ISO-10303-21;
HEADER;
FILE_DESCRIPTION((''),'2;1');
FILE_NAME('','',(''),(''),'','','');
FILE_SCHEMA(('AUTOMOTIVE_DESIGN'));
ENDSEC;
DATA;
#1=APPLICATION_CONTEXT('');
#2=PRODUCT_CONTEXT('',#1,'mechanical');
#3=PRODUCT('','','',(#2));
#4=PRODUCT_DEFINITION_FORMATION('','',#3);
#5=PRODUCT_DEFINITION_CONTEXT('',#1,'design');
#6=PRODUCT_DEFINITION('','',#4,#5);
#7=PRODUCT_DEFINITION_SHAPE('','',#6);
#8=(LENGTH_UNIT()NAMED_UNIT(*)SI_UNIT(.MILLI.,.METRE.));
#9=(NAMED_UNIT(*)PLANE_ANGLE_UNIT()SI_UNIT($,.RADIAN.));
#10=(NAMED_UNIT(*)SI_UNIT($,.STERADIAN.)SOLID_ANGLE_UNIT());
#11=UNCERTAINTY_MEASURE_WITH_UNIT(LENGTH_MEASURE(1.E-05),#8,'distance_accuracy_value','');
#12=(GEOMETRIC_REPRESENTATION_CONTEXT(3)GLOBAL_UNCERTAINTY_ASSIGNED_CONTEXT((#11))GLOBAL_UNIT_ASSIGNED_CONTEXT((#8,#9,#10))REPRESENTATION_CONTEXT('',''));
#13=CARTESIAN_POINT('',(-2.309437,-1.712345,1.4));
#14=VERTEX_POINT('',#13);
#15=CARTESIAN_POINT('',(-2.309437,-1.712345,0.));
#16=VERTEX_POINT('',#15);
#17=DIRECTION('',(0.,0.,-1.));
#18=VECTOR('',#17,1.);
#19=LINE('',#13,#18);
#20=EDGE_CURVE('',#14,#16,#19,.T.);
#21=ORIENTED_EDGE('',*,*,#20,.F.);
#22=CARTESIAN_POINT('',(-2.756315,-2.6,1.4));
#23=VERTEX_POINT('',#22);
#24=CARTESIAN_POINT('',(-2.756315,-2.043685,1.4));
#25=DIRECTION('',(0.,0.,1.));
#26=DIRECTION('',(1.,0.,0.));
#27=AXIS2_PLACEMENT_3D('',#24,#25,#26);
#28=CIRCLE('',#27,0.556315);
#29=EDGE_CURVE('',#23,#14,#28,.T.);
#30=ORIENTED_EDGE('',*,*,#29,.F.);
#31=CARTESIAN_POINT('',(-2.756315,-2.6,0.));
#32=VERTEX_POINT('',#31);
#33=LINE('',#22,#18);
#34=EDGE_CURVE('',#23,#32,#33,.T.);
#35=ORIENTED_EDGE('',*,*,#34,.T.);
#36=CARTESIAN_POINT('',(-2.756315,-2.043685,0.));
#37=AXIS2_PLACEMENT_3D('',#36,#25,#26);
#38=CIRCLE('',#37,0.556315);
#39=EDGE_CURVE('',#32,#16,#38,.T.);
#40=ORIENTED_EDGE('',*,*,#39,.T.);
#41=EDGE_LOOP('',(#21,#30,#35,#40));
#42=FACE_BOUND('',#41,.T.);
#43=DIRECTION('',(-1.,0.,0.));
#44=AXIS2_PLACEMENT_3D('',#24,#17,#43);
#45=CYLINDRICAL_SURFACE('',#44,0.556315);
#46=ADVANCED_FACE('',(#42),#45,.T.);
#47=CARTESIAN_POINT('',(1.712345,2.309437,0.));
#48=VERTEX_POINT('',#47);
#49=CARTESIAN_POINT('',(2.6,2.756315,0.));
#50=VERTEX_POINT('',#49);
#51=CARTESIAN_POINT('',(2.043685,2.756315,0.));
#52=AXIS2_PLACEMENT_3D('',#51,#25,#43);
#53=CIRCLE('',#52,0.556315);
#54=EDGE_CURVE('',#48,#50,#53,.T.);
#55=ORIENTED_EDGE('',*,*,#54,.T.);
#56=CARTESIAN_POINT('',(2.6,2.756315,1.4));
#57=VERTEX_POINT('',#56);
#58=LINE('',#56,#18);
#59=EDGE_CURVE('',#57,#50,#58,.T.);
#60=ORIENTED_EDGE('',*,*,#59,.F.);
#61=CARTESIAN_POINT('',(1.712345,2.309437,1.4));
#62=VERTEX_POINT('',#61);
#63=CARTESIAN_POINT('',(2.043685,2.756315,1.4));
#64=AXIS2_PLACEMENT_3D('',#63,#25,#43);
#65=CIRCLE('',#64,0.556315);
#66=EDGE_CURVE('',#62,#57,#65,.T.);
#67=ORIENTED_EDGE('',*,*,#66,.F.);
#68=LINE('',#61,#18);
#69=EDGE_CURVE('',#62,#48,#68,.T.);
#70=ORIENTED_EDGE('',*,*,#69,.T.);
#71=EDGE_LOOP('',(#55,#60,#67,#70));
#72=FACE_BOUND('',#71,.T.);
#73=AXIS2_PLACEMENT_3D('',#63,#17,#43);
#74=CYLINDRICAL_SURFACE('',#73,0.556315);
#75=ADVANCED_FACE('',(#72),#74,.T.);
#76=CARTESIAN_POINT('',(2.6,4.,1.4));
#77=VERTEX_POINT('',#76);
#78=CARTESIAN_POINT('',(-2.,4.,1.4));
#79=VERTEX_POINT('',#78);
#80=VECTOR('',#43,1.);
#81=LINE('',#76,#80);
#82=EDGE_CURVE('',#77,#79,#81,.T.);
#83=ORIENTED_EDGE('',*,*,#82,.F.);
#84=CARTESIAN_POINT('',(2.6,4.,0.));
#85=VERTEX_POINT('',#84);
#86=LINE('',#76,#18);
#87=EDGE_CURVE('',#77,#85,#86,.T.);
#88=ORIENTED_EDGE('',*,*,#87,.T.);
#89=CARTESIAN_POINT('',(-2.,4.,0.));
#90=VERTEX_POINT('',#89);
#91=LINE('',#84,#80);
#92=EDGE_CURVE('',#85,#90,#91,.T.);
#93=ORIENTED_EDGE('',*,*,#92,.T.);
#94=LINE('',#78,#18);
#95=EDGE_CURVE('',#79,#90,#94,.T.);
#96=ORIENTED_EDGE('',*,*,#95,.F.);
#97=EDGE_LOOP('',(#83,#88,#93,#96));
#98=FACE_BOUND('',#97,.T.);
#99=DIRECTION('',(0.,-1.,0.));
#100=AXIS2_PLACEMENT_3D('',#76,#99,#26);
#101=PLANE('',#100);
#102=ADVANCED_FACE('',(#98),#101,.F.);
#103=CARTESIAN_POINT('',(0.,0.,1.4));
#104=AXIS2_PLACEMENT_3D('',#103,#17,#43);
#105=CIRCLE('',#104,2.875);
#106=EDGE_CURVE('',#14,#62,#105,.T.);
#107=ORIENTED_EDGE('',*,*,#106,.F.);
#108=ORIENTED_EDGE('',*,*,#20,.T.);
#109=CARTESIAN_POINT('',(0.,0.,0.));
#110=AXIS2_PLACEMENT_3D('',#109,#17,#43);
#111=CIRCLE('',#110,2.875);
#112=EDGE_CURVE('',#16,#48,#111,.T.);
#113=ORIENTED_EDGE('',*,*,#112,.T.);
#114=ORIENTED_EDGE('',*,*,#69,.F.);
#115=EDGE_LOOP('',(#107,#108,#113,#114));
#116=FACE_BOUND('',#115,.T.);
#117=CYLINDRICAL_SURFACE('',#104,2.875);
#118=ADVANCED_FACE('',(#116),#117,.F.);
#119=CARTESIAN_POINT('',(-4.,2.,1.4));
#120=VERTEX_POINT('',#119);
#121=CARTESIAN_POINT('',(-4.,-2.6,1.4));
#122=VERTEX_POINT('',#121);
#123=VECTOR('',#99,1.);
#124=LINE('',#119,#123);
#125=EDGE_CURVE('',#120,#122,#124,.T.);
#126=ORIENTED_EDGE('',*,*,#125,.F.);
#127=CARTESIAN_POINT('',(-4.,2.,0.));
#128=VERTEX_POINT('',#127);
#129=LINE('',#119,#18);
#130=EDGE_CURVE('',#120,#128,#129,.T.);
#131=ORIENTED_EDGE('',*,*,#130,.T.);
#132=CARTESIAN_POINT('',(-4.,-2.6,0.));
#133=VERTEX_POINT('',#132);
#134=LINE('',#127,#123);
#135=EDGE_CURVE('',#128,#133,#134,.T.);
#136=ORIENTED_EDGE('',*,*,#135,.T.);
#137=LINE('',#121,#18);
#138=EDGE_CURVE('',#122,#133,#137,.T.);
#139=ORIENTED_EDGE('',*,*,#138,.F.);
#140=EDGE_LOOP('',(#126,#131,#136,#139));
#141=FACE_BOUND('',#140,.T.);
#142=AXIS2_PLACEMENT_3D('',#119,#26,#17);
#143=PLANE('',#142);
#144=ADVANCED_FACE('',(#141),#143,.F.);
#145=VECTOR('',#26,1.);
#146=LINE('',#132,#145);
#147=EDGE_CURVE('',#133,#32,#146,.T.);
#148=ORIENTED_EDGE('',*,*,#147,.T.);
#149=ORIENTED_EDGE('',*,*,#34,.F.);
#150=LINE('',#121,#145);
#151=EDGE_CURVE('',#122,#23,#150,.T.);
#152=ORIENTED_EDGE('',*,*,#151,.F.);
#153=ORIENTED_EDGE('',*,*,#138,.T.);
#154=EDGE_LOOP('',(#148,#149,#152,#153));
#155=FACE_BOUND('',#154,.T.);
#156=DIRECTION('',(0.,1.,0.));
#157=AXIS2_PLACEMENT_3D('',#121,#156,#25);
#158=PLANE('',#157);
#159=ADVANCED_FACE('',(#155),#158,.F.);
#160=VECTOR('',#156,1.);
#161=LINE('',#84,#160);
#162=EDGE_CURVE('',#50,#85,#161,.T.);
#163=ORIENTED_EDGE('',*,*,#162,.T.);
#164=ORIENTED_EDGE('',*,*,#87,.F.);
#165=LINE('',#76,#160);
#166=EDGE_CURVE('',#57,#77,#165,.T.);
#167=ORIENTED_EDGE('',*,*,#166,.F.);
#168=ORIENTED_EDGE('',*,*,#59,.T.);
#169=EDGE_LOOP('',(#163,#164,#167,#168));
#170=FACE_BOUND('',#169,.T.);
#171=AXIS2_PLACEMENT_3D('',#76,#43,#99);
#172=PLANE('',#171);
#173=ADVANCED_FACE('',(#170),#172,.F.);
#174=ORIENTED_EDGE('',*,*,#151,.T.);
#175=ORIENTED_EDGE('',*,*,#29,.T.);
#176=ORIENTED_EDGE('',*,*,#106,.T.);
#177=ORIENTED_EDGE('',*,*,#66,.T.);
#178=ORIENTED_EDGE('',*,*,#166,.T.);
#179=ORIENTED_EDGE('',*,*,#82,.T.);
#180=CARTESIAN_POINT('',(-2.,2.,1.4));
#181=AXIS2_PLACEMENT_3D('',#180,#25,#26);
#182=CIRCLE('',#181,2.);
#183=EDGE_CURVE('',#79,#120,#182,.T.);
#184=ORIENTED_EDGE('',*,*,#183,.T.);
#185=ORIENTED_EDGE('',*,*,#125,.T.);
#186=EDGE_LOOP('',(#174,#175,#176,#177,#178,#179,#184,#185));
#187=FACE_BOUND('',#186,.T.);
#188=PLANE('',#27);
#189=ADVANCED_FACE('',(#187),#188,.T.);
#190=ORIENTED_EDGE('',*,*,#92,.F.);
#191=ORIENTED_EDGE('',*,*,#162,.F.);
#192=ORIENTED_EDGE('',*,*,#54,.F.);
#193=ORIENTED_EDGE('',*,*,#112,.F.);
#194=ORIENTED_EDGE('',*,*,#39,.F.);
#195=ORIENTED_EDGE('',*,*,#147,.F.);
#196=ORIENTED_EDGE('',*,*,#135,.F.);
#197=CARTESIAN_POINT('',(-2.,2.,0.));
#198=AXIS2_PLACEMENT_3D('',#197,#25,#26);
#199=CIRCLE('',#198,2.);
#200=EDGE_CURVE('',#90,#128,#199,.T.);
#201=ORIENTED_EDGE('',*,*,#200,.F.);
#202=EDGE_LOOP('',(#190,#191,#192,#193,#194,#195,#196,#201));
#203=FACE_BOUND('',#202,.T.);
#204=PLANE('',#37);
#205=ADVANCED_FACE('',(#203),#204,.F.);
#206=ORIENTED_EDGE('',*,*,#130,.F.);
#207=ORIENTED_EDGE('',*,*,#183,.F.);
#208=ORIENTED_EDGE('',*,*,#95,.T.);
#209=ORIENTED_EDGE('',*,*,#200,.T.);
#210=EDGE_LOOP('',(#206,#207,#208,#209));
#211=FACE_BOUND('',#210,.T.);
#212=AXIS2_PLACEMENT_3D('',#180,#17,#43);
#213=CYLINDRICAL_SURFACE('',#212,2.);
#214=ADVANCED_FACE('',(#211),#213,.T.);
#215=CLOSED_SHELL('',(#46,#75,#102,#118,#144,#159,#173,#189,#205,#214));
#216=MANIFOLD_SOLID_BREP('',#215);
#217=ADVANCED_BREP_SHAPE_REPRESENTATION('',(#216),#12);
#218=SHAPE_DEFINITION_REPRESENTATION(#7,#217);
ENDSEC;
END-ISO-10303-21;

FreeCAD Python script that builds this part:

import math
import FreeCAD as App
import Part
import Sketcher
Q = App.Units.Quantity

doc = App.newDocument("Part")
body = doc.addObject("PartDesign::Body", "Body")

sketch1 = body.newObject("Sketcher::SketchObject", "Sketch")
sketch1.AttachmentSupport = (doc.getObject("XY_Plane"), [""])
sketch1.MapMode = "FlatFace"
sketch1.addGeometry([
    Part.LineSegment(App.Vector(2.6, 4, 0), App.Vector(-2, 4, 0)),
    Part.ArcOfCircle(Part.Circle(App.Vector(-2, 2, 0), App.Vector(0, 0, 1), 2), math.radians(90), math.radians(180)),
    Part.LineSegment(App.Vector(-4, 2, 0), App.Vector(-4, -2.6, 0)),
    Part.LineSegment(App.Vector(-4, -2.6, 0), App.Vector(-2.756315, -2.6, 0)),
    Part.ArcOfCircle(Part.Circle(App.Vector(-2.756315, -2.043685, 0), App.Vector(0, 0, 1), 0.556315), math.radians(-90), math.radians(36.555299)),
    Part.ArcOfCircle(Part.Circle(App.Vector(0, 0, 0), App.Vector(0, 0, 1), 2.875), math.radians(53.444701), math.radians(216.555299)),
    Part.ArcOfCircle(Part.Circle(App.Vector(2.043685, 2.756315, 0), App.Vector(0, 0, 1), 0.556315), math.radians(-126.555299), math.radians(0)),
    Part.LineSegment(App.Vector(2.6, 2.756315, 0), App.Vector(2.6, 4, 0)),
], False)
sketch1.addConstraint([
    Sketcher.Constraint("Tangent", 0, 2, 1, 1),
    Sketcher.Constraint("Tangent", 1, 2, 2, 1),
    Sketcher.Constraint("Coincident", 2, 2, 3, 1),
    Sketcher.Constraint("Tangent", 3, 2, 4, 1),
    Sketcher.Constraint("Tangent", 4, 2, 5, 2),
    Sketcher.Constraint("Tangent", 5, 1, 6, 1),
    Sketcher.Constraint("Tangent", 6, 2, 7, 1),
    Sketcher.Constraint("Coincident", 7, 2, 0, 1),
    Sketcher.Constraint("Horizontal", 0),
    Sketcher.Constraint("Vertical", 2),
    Sketcher.Constraint("Horizontal", 3),
    Sketcher.Constraint("Vertical", 7),
    Sketcher.Constraint("Coincident", 5, 3, -1, 1),
    Sketcher.Constraint("Equal", 4, 6),
    Sketcher.Constraint("Equal", 0, 2),
    Sketcher.Constraint("Equal", 3, 7),
    Sketcher.Constraint("Radius", 1, Q("2 mm")),
    Sketcher.Constraint("DistanceX", 0, 2, 0, 1, Q("4.6 mm")),
    Sketcher.Constraint("DistanceX", 1, 3, -1, 1, Q("2 mm")),
    Sketcher.Constraint("Radius", 5, Q("2.875 mm")),
    Sketcher.Constraint("DistanceX", 4, 3, 6, 3, Q("4.8 mm")),
])
pad1 = body.newObject("PartDesign::Pad", "Pad")
pad1.Profile = sketch1
pad1.Length = 1.4

doc.recompute()
